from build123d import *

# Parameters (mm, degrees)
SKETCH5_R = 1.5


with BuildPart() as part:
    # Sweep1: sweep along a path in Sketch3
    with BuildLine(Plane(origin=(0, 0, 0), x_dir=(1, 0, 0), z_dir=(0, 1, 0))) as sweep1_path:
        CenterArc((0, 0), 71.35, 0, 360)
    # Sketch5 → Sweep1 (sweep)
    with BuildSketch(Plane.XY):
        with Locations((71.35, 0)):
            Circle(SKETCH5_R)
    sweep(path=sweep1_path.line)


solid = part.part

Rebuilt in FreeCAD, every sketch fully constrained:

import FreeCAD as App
import Part
import Sketcher
Q = App.Units.Quantity

doc = App.newDocument("Part")
body = doc.addObject("PartDesign::Body", "Body")

# Sketch on XY plane
sketch1 = doc.addObject("Sketcher::SketchObject", "Sketch")
body.addObject(sketch1)
sketch1.AttachmentSupport = (doc.XY_Plane, [""])
sketch1.MapMode = "FlatFace"
sketch1.addGeometry(Part.Circle(App.Vector(71.3, 0, 0), App.Vector(0, 0, 1), 1.5), False)
sketch1.addConstraint(Sketcher.Constraint("PointOnObject", 0, 3, -1))
sketch1.addConstraint(Sketcher.Constraint("Diameter", 0, Q("3 mm")))
sketch1.addConstraint(Sketcher.Constraint("DistanceX", -1, 1, 0, 3, Q("71.35 mm")))

# Sketch on XZ plane
sketch2 = doc.addObject("Sketcher::SketchObject", "Sketch001")
body.addObject(sketch2)
sketch2.AttachmentSupport = (doc.XZ_Plane, [""])
sketch2.MapMode = "FlatFace"
sketch2.addGeometry(Part.Circle(App.Vector(0, 0, 0), App.Vector(0, 0, 1), 71), False)
sketch2.addConstraint(Sketcher.Constraint("Coincident", 0, 3, -1, 1))
sketch2.addConstraint(Sketcher.Constraint("Diameter", 0, Q("142.7 mm")))
doc.recompute()

additivepipe = doc.addObject("PartDesign::AdditivePipe", "AdditivePipe")
body.addObject(additivepipe)
additivepipe.Profile = sketch1
additivepipe.Spine = (sketch2, ["Edge1"])

doc.recompute()
